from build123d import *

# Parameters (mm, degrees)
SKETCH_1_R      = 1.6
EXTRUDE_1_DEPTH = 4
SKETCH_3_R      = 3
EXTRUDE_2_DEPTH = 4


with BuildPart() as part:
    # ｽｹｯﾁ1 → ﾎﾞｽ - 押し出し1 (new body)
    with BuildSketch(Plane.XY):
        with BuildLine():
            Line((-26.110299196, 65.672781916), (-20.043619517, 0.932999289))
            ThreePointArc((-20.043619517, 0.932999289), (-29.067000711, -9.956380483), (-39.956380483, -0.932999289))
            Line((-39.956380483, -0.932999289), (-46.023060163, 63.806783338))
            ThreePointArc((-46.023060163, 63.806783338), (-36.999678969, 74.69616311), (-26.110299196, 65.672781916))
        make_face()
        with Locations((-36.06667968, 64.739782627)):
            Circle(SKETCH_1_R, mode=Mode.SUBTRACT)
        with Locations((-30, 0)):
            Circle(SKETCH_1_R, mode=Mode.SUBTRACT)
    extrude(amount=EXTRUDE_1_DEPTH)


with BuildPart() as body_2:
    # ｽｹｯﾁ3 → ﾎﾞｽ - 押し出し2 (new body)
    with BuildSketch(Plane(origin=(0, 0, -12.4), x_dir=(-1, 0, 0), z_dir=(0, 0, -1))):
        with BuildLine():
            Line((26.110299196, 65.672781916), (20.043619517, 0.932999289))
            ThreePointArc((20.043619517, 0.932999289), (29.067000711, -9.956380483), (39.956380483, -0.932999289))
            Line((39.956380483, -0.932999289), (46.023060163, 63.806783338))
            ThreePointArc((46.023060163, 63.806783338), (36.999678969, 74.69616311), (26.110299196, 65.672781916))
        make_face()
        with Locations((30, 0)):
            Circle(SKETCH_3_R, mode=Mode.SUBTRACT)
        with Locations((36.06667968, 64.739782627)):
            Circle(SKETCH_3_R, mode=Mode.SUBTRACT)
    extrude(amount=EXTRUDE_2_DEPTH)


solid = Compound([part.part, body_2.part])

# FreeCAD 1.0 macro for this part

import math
import FreeCAD as App
import Part
import Sketcher

doc = App.newDocument("Part")
body = doc.addObject("PartDesign::Body", "Body")

# Sketch on XY plane
sketch1 = body.newObject("Sketcher::SketchObject", "Sketch")
sketch1.AttachmentSupport = (doc.getObject("XY_Plane"), [""])
sketch1.MapMode = "FlatFace"
sketch1.addGeometry(Part.LineSegment(App.Vector(-20.04362, 0.932999, 0), App.Vector(-26.110299, 65.672782, 0)), False)
sketch1.addGeometry(Part.ArcOfCircle(Part.Circle(App.Vector(-36.06668, 64.739783, 0), App.Vector(0, 0, 1), 10), math.radians(5.353478), math.radians(185.353478)), False)
sketch1.addGeometry(Part.LineSegment(App.Vector(-46.02306, 63.806783, 0), App.Vector(-39.95638, -0.932999, 0)), False)
sketch1.addGeometry(Part.ArcOfCircle(Part.Circle(App.Vector(-30, 0, 0), App.Vector(0, 0, 1), 10), math.radians(-174.646522), math.radians(5.353478)), False)
sketch1.addGeometry(Part.Circle(App.Vector(-30, 0, 0), App.Vector(0, 0, 1), 1.6), False)
sketch1.addGeometry(Part.Circle(App.Vector(-36.06668, 64.739783, 0), App.Vector(0, 0, 1), 1.6), False)
sketch1.addConstraint(Sketcher.Constraint("Tangent", 0, 2, 1, 1))
sketch1.addConstraint(Sketcher.Constraint("Tangent", 1, 2, 2, 1))
sketch1.addConstraint(Sketcher.Constraint("Tangent", 2, 2, 3, 1))
sketch1.addConstraint(Sketcher.Constraint("Tangent", 3, 2, 0, 1))
sketch1.addConstraint(Sketcher.Constraint("Coincident", 4, 3, 3, 3))
sketch1.addConstraint(Sketcher.Constraint("Coincident", 5, 3, 1, 3))
sketch1.addConstraint(Sketcher.Constraint("Equal", 1, 3))
sketch1.addConstraint(Sketcher.Constraint("Equal", 4, 5))
sketch1.addConstraint(Sketcher.Constraint("PointOnObject", 3, 3, -1))
sketch1.addConstraint(Sketcher.Constraint("Radius", 1, 10.0))
sketch1.addConstraint(Sketcher.Constraint("Diameter", 4, 3.2))
sketch1.addConstraint(Sketcher.Constraint("DistanceX", 3, 3, -1, 1, 30.0))
sketch1.addConstraint(Sketcher.Constraint("DistanceY", 2, 2, -1, 1, 0.932999))
sketch1.addConstraint(Sketcher.Constraint("DistanceX", 0, 2, -1, 1, 26.110299))
pad1 = body.newObject("PartDesign::Pad", "Pad")
pad1.Profile = sketch1
pad1.Length = 4
body2 = doc.addObject("PartDesign::Body", "Body001")

# Sketch on XY plane
sketch2 = body2.newObject("Sketcher::SketchObject", "Sketch001")
sketch2.AttachmentSupport = (doc.getObject("XY_Plane001"), [""])
sketch2.MapMode = "FlatFace"
sketch2.AttachmentOffset = App.Placement(App.Vector(0, 0, -12.4), App.Rotation())
sketch2.addGeometry(Part.LineSegment(App.Vector(-26.110299, 65.672782, 0), App.Vector(-20.04362, 0.932999, 0)), False)
sketch2.addGeometry(Part.ArcOfCircle(Part.Circle(App.Vector(-30, 0, 0), App.Vector(0, 0, 1), 10), math.radians(-174.646522), math.radians(5.353478)), False)
sketch2.addGeometry(Part.LineSegment(App.Vector(-39.95638, -0.932999, 0), App.Vector(-46.02306, 63.806783, 0)), False)
sketch2.addGeometry(Part.ArcOfCircle(Part.Circle(App.Vector(-36.06668, 64.739783, 0), App.Vector(0, 0, 1), 10), math.radians(5.353478), math.radians(185.353478)), False)
sketch2.addGeometry(Part.Circle(App.Vector(-30, 0, 0), App.Vector(0, 0, 1), 3), False)
sketch2.addGeometry(Part.Circle(App.Vector(-36.06668, 64.739783, 0), App.Vector(0, 0, 1), 3), False)
sketch2.addConstraint(Sketcher.Constraint("Tangent", 0, 2, 1, 2))
sketch2.addConstraint(Sketcher.Constraint("Tangent", 1, 1, 2, 1))
sketch2.addConstraint(Sketcher.Constraint("Tangent", 2, 2, 3, 2))
sketch2.addConstraint(Sketcher.Constraint("Tangent", 3, 1, 0, 1))
sketch2.addConstraint(Sketcher.Constraint("Coincident", 4, 3, 1, 3))
sketch2.addConstraint(Sketcher.Constraint("Coincident", 5, 3, 3, 3))
sketch2.addConstraint(Sketcher.Constraint("Equal", 1, 3))
sketch2.addConstraint(Sketcher.Constraint("Equal", 4, 5))
sketch2.addConstraint(Sketcher.Constraint("PointOnObject", 1, 3, -1))
sketch2.addConstraint(Sketcher.Constraint("Diameter", 4, 6.0))
sketch2.addConstraint(Sketcher.Constraint("Radius", 1, 10.0))
sketch2.addConstraint(Sketcher.Constraint("DistanceX", 1, 3, -1, 1, 30.0))
sketch2.addConstraint(Sketcher.Constraint("DistanceY", -1, 1, 0, 2, 0.932999))
sketch2.addConstraint(Sketcher.Constraint("DistanceX", 3, 1, -1, 1, 26.110299))
pad2 = body2.newObject("PartDesign::Pad", "Pad001")
pad2.Profile = sketch2
pad2.Length = 4
pad2.Reversed = True

doc.recompute()
